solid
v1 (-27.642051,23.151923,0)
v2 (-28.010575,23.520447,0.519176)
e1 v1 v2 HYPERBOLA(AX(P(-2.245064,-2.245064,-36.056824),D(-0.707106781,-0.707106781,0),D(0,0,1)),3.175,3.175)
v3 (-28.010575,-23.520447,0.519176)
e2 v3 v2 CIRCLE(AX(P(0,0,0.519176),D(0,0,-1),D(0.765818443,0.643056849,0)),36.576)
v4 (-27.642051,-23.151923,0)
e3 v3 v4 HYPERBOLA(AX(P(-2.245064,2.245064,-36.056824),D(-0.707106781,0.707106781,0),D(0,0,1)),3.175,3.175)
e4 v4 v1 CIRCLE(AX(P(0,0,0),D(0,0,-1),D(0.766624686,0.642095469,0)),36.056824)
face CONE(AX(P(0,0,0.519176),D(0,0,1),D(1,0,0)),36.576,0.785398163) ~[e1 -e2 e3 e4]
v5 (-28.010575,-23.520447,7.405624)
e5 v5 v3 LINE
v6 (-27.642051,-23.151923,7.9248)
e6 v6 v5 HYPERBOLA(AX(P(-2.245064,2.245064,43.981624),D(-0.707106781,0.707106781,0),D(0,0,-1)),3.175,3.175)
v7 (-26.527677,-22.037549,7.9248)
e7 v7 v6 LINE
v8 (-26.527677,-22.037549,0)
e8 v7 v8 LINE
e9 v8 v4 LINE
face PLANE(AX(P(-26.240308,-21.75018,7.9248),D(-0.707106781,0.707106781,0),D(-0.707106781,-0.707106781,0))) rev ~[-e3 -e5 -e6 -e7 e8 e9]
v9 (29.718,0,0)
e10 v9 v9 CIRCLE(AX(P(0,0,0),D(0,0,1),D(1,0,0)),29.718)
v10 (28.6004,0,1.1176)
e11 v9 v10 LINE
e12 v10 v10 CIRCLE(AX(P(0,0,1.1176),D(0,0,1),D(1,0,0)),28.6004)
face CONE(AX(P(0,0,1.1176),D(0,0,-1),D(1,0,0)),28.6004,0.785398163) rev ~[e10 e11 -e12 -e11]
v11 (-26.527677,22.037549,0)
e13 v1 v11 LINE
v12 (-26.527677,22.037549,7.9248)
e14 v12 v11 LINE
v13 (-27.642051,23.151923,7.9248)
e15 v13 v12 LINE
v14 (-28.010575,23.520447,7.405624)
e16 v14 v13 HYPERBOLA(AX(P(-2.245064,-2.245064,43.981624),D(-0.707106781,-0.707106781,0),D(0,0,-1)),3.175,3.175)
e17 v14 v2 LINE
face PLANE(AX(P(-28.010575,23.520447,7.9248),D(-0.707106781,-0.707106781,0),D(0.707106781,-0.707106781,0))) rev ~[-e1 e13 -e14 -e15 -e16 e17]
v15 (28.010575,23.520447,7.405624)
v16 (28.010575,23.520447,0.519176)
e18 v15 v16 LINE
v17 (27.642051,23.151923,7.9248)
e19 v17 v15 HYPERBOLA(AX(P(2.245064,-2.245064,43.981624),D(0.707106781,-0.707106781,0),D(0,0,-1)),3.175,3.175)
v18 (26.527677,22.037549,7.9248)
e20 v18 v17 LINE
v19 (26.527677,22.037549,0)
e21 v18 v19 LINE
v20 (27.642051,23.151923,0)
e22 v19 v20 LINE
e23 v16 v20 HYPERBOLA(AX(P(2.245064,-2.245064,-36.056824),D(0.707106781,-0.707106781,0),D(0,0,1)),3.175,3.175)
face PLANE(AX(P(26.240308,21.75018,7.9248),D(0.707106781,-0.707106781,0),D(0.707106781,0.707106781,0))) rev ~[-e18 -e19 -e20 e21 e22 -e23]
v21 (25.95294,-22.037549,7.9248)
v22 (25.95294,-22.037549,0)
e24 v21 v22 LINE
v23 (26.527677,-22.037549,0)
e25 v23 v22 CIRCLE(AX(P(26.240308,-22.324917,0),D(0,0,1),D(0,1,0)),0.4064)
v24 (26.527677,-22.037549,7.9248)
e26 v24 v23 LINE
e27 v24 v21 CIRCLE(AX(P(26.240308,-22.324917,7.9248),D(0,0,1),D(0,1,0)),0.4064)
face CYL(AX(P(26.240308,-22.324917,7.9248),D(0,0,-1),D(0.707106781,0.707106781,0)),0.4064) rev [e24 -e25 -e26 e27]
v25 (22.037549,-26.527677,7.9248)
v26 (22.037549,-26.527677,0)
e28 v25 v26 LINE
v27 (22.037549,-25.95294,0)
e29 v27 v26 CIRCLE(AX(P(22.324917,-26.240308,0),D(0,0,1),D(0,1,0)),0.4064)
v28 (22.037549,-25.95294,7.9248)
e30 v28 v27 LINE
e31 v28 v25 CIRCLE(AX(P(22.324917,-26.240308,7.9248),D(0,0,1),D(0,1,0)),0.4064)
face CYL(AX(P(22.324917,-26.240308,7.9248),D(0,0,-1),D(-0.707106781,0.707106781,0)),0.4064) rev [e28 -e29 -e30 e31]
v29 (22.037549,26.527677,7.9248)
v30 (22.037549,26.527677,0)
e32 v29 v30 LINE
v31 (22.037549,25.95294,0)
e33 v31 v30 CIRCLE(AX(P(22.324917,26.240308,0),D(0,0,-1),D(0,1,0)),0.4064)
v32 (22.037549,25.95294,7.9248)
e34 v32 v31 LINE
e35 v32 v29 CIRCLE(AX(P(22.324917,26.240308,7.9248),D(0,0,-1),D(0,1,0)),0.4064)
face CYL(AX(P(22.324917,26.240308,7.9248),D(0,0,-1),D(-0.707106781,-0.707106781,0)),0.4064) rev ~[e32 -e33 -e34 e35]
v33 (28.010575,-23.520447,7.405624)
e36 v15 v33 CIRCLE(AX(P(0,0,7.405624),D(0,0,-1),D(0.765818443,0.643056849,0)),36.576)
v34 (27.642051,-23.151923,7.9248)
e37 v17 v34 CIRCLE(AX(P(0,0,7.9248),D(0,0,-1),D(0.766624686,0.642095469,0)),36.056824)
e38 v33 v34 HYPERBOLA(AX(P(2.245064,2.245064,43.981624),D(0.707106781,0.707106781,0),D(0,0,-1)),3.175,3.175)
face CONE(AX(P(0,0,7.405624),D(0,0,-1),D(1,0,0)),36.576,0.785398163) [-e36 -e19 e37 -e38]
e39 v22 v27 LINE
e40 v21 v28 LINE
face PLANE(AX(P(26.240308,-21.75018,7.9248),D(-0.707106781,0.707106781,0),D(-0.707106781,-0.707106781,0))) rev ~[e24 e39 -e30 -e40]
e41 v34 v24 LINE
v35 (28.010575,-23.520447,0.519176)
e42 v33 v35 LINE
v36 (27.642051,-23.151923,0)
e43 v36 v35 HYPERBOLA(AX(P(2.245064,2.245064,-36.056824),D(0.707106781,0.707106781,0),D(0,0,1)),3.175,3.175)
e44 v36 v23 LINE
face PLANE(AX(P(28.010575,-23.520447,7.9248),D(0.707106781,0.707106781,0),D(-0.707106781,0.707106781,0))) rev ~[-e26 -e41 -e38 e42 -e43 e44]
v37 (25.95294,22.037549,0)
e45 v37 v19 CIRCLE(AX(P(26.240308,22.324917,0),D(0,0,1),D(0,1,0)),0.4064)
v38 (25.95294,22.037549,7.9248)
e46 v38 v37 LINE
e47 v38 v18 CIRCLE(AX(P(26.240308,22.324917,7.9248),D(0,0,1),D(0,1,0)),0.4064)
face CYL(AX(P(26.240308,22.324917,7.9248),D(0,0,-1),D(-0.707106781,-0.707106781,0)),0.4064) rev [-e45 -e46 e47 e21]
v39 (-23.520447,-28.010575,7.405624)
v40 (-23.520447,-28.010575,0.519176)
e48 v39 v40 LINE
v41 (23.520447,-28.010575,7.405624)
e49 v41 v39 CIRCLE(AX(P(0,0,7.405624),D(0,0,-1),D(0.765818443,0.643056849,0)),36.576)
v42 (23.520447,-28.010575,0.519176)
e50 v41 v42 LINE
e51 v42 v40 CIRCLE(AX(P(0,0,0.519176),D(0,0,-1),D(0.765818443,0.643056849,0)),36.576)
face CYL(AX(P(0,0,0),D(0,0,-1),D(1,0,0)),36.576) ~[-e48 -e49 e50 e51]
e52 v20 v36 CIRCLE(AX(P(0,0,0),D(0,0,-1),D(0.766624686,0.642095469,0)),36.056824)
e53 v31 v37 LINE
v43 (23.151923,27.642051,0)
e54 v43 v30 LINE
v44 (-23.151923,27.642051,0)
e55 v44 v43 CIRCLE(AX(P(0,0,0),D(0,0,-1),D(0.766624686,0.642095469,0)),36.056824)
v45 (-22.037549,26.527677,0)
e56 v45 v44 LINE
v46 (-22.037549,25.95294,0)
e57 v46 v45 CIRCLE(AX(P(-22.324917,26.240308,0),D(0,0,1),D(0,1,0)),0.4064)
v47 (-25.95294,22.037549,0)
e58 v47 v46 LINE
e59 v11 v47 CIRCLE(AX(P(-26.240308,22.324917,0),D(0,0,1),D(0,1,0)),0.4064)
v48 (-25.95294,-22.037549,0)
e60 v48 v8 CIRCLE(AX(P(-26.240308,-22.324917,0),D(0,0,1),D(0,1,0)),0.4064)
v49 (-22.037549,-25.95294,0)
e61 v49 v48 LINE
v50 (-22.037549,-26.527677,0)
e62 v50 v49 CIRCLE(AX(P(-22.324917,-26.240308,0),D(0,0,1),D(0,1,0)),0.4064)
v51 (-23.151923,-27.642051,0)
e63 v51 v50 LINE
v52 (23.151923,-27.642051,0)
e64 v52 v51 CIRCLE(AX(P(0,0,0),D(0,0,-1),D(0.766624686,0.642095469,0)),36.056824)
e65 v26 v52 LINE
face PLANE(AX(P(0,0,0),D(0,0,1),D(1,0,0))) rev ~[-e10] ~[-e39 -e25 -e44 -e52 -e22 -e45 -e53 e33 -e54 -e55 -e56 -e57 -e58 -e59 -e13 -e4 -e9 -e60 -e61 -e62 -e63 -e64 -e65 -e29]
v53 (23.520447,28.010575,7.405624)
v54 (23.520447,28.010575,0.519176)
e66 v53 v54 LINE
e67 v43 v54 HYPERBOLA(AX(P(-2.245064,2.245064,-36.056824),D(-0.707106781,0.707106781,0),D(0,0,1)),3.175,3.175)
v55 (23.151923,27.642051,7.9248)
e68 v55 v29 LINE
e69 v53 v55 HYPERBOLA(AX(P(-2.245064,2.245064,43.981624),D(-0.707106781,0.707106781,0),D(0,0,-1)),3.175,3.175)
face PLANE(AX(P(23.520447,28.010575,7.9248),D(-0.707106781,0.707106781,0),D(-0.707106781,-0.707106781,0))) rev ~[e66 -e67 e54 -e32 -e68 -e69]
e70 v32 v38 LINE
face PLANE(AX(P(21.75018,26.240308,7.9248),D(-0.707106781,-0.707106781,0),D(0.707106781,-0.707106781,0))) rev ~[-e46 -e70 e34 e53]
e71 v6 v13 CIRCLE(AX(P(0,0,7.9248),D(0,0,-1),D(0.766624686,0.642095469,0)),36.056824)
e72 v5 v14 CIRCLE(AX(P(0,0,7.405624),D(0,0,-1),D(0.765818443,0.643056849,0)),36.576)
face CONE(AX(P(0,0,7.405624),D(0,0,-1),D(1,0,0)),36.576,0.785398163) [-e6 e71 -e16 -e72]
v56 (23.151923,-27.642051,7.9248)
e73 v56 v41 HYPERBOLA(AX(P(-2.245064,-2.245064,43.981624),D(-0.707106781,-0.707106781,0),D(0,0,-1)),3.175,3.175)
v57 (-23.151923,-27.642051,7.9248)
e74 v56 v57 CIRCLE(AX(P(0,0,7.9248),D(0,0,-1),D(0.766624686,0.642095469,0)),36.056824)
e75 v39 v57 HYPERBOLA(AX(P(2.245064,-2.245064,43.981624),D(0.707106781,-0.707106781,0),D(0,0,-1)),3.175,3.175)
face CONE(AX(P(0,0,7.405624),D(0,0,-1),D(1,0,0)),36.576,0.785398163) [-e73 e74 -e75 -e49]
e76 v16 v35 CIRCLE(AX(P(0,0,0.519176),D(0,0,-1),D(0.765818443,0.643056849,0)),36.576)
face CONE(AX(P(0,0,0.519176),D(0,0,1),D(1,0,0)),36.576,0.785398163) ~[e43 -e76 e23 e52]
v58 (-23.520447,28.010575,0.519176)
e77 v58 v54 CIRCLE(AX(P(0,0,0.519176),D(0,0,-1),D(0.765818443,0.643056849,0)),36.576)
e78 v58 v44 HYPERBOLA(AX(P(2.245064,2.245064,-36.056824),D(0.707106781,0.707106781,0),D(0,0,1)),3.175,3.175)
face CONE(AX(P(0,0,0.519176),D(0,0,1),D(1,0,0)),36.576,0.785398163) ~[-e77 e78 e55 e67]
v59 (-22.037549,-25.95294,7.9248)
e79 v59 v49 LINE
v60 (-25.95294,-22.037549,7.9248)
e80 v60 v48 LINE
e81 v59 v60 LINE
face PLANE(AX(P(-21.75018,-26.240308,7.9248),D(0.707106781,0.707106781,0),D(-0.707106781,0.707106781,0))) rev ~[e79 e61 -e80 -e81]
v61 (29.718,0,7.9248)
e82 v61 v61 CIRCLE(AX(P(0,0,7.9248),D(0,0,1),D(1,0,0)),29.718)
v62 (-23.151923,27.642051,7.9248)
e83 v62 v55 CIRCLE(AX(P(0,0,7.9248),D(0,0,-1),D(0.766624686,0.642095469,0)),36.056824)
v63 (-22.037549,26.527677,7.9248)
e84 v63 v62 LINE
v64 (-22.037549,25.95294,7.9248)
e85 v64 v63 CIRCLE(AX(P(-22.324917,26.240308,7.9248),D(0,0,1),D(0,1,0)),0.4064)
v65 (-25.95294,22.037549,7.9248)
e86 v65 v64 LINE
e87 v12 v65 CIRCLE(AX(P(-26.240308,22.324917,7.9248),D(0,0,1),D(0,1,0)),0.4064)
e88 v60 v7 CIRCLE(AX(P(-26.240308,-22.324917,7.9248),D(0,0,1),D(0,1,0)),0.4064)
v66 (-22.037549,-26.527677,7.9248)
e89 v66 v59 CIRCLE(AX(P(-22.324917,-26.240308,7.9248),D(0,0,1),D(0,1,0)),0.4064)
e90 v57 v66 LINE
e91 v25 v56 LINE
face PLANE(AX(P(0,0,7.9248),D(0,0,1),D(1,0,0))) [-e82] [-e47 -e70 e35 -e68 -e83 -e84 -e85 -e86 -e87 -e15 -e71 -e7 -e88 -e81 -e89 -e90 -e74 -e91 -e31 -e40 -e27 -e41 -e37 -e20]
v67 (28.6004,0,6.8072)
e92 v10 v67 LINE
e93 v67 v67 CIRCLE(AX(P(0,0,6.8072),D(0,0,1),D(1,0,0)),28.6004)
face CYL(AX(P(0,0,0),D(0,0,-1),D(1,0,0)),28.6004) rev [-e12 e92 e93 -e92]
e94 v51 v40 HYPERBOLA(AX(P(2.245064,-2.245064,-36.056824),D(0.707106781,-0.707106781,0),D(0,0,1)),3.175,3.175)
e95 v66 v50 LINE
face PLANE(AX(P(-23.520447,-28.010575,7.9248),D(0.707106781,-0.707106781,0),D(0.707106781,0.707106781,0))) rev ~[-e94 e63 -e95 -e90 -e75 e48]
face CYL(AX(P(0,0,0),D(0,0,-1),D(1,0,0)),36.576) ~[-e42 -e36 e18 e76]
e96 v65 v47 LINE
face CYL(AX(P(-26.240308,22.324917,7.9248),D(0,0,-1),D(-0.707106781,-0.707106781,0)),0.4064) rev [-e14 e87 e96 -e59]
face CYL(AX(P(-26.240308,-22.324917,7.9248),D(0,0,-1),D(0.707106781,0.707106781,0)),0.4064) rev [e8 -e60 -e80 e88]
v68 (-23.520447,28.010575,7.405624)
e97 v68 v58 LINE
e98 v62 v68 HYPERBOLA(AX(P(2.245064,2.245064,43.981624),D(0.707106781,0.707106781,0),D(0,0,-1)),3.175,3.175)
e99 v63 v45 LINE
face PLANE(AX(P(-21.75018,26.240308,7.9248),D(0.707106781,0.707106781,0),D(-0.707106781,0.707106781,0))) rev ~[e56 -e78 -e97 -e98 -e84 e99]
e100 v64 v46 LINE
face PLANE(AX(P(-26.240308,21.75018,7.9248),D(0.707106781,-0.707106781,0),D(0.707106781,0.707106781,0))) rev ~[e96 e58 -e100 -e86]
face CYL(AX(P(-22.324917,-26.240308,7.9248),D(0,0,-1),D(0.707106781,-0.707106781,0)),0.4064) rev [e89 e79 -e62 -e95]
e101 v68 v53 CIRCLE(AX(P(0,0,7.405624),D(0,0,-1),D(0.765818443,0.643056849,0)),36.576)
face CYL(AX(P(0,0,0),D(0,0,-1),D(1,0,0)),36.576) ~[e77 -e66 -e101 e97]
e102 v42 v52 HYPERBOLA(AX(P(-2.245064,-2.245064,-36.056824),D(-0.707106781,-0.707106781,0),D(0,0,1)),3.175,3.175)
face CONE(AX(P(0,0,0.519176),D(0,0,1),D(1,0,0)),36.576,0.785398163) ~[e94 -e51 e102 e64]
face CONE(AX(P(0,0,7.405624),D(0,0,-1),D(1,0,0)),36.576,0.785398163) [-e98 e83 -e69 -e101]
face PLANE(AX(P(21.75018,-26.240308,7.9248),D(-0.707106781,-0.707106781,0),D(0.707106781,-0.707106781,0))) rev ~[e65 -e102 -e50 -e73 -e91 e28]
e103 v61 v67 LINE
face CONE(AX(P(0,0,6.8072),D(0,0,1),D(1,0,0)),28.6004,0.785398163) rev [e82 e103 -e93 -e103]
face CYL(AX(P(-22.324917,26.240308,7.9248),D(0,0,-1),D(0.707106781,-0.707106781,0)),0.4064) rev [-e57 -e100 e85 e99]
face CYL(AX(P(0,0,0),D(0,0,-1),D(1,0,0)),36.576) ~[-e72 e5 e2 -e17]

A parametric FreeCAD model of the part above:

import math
import FreeCAD as App
import Part
import Sketcher

V = App.Vector
Q = App.Units.Quantity


def edges_at(feature, points):
    """Names of the edges that pass closest to the given points."""
    edges = feature.Shape.Edges
    near = lambda p: min(range(len(edges)), key=lambda i: edges[i].distToShape(Part.Vertex(*p))[0])
    return sorted({f"Edge{near(p) + 1}" for p in points})

doc = App.newDocument("Part")
body = doc.addObject("PartDesign::Body", "Body")

# Sketch on XY plane
sketch1 = doc.addObject("Sketcher::SketchObject", "Sketch")
body.addObject(sketch1)
sketch1.AttachmentSupport = (doc.XY_Plane, [""])
sketch1.MapMode = "FlatFace"
sketch1.addGeometry([
    Part.Circle(V(0, 0, 0), V(0, 0, 1), 36.576),
    Part.Circle(V(0, 0, 0), V(0, 0, 1), 28.6004),
], False)
sketch1.addConstraint([
    Sketcher.Constraint("Coincident", 0, 3, -1, 1),
    Sketcher.Constraint("Coincident", 1, 3, -1, 1),
    Sketcher.Constraint("Diameter", 0, Q("2.88 in")),
    Sketcher.Constraint("Diameter", 1, Q("2.252 in")),
])
pad1 = doc.addObject("PartDesign::Pad", "Pad")
body.addObject(pad1)
pad1.Profile = sketch1
pad1.Length = Q("0.312 in")
doc.recompute()

chamfer = doc.addObject("PartDesign::Chamfer", "Chamfer")
body.addObject(chamfer)
chamfer.Base = (pad1, edges_at(pad1, [(-36.576, 0, 0), (-36.576, 0, 7.925)]))
chamfer.Size = 0.519176
doc.recompute()

chamfer2 = doc.addObject("PartDesign::Chamfer", "Chamfer001")
body.addObject(chamfer2)
chamfer2.Base = (chamfer, edges_at(chamfer, [(-28.6, 0, 0), (-28.6, 0, 7.925)]))
chamfer2.Size = Q("0.044 in")

# Sketch on XY plane
sketch2 = doc.addObject("Sketcher::SketchObject", "Sketch001")
body.addObject(sketch2)
sketch2.AttachmentSupport = (doc.XY_Plane, [""])
sketch2.MapMode = "FlatFace"
sketch2.AttachmentOffset = App.Placement(V(0, 0, 0.312 * 25.4), App.Rotation())
sketch2.addGeometry([
    Part.LineSegment(V(23.520447, 28.010575, 0), V(21.75018, 26.240308, 0)),
    Part.LineSegment(V(21.75018, 26.240308, 0), V(26.240308, 21.75018, 0)),
    Part.LineSegment(V(26.240308, 21.75018, 0), V(28.010575, 23.520447, 0)),
    Part.ArcOfCircle(Part.Circle(V(0, 0, 0), V(0, 0, 1), 36.576), math.radians(40.020141), math.radians(49.979859)),
], False)
sketch2.addConstraint([
    Sketcher.Constraint("Coincident", 0, 2, 1, 1),
    Sketcher.Constraint("Coincident", 1, 2, 2, 1),
    Sketcher.Constraint("Coincident", 2, 2, 3, 1),
    Sketcher.Constraint("Coincident", 3, 2, 0, 1),
    Sketcher.Constraint("Coincident", 3, 3, -1, 1),
    Sketcher.Constraint("Perpendicular", 0, 1),
    Sketcher.Constraint("Perpendicular", 1, 2),
    Sketcher.Constraint("Equal", 0, 2),
    Sketcher.Constraint("Radius", 3, Q("1.44 in")),
    Sketcher.Constraint("Angle", 0, Q("-135 deg")),
    Sketcher.Constraint("Distance", 1, Q("0.25 in")),
    Sketcher.Constraint("DistanceX", -1, 1, 0, 2, 21.75018),
])
pocket1 = doc.addObject("PartDesign::Pocket", "Pocket")
body.addObject(pocket1)
pocket1.Profile = sketch2
pocket1.Type = "ThroughAll"
doc.recompute()

fillet = doc.addObject("PartDesign::Fillet", "Fillet")
body.addObject(fillet)
fillet.Base = (pocket1, edges_at(pocket1, [(26.24, 21.75, 3.962), (21.75, 26.24, 3.962)]))
fillet.Radius = Q("0.016 in")
doc.recompute()

polarpattern = doc.addObject("PartDesign::PolarPattern", "PolarPattern")
body.addObject(polarpattern)
polarpattern.Originals = [pocket1]
polarpattern.Axis = (doc.Z_Axis, [""])
polarpattern.Angle = 360
polarpattern.Occurrences = 4
body.Tip = polarpattern
doc.recompute()

fillet2 = doc.addObject("PartDesign::Fillet", "Fillet001")
body.addObject(fillet2)
fillet2.Base = (polarpattern, edges_at(polarpattern, [
    (-21.75, 26.24, 3.962),
    (-26.24, 21.75, 3.962),
    (-26.24, -21.75, 3.962),
    (-21.75, -26.24, 3.962),
    (21.75, -26.24, 3.962),
    (26.24, -21.75, 3.962),
]))
fillet2.Radius = Q("0.016 in")

doc.recompute()
